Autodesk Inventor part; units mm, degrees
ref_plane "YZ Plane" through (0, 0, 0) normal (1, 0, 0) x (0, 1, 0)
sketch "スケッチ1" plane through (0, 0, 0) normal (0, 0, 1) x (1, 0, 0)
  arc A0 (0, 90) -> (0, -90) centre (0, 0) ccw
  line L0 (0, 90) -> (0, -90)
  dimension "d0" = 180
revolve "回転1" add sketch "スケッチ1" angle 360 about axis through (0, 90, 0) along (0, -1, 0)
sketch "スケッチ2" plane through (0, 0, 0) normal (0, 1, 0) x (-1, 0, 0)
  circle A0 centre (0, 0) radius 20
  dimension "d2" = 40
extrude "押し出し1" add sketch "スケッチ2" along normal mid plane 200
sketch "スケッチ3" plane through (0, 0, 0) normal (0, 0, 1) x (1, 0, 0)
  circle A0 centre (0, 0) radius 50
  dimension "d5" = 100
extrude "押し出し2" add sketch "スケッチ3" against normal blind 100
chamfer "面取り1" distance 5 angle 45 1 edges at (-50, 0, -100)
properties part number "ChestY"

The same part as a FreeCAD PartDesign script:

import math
import FreeCAD as App
import Part
import Sketcher


def edges_at(feature, points):
    """Names of the edges that pass closest to the given points."""
    edges = feature.Shape.Edges
    near = lambda p: min(range(len(edges)), key=lambda i: edges[i].distToShape(Part.Vertex(*p))[0])
    return sorted({f"Edge{near(p) + 1}" for p in points})

doc = App.newDocument("Part")
body = doc.addObject("PartDesign::Body", "Body")

# Sketch on XY plane
sketch1 = body.newObject("Sketcher::SketchObject", "Sketch")
sketch1.AttachmentSupport = (doc.getObject("XY_Plane"), [""])
sketch1.MapMode = "FlatFace"
sketch1.addGeometry(Part.LineSegment(App.Vector(0, -90, 0), App.Vector(0, 90, 0)), False)
sketch1.addGeometry(Part.ArcOfCircle(Part.Circle(App.Vector(0, 0, 0), App.Vector(0, 0, 1), 90), math.radians(90), math.radians(270)), False)
sketch1.addConstraint(Sketcher.Constraint("Coincident", 0, 1, 1, 2))
sketch1.addConstraint(Sketcher.Constraint("Coincident", 1, 1, 0, 2))
sketch1.addConstraint(Sketcher.Constraint("Vertical", 0))
sketch1.addConstraint(Sketcher.Constraint("Coincident", 1, 3, -1, 1))
sketch1.addConstraint(Sketcher.Constraint("PointOnObject", 0, 1, -2))
sketch1.addConstraint(Sketcher.Constraint("Radius", 1, 90.0))
revolution = body.newObject("PartDesign::Revolution", "Revolution")
revolution.Profile = sketch1
revolution.ReferenceAxis = (sketch1, ["V_Axis"])
revolution.Angle = 360

# Sketch on XZ plane
sketch2 = body.newObject("Sketcher::SketchObject", "Sketch001")
sketch2.AttachmentSupport = (doc.getObject("XZ_Plane"), [""])
sketch2.MapMode = "FlatFace"
sketch2.addGeometry(Part.Circle(App.Vector(0, 0, 0), App.Vector(0, 0, 1), 20), False)
sketch2.addConstraint(Sketcher.Constraint("Coincident", 0, 3, -1, 1))
sketch2.addConstraint(Sketcher.Constraint("Diameter", 0, 40.0))
pad1 = body.newObject("PartDesign::Pad", "Pad")
pad1.Profile = sketch2
pad1.Length = 200
pad1.Midplane = True

# Sketch on XY plane
sketch3 = body.newObject("Sketcher::SketchObject", "Sketch002")
sketch3.AttachmentSupport = (doc.getObject("XY_Plane"), [""])
sketch3.MapMode = "FlatFace"
sketch3.addGeometry(Part.Circle(App.Vector(0, 0, 0), App.Vector(0, 0, 1), 50), False)
sketch3.addConstraint(Sketcher.Constraint("Coincident", 0, 3, -1, 1))
sketch3.addConstraint(Sketcher.Constraint("Diameter", 0, 100.0))
pad2 = body.newObject("PartDesign::Pad", "Pad001")
pad2.Profile = sketch3
pad2.Length = 100
pad2.Reversed = True
doc.recompute()

chamfer = body.newObject("PartDesign::Chamfer", "Chamfer")
chamfer.Base = (pad2, edges_at(pad2, [(-50, 0, -100)]))
chamfer.Size = 5

doc.recompute()
